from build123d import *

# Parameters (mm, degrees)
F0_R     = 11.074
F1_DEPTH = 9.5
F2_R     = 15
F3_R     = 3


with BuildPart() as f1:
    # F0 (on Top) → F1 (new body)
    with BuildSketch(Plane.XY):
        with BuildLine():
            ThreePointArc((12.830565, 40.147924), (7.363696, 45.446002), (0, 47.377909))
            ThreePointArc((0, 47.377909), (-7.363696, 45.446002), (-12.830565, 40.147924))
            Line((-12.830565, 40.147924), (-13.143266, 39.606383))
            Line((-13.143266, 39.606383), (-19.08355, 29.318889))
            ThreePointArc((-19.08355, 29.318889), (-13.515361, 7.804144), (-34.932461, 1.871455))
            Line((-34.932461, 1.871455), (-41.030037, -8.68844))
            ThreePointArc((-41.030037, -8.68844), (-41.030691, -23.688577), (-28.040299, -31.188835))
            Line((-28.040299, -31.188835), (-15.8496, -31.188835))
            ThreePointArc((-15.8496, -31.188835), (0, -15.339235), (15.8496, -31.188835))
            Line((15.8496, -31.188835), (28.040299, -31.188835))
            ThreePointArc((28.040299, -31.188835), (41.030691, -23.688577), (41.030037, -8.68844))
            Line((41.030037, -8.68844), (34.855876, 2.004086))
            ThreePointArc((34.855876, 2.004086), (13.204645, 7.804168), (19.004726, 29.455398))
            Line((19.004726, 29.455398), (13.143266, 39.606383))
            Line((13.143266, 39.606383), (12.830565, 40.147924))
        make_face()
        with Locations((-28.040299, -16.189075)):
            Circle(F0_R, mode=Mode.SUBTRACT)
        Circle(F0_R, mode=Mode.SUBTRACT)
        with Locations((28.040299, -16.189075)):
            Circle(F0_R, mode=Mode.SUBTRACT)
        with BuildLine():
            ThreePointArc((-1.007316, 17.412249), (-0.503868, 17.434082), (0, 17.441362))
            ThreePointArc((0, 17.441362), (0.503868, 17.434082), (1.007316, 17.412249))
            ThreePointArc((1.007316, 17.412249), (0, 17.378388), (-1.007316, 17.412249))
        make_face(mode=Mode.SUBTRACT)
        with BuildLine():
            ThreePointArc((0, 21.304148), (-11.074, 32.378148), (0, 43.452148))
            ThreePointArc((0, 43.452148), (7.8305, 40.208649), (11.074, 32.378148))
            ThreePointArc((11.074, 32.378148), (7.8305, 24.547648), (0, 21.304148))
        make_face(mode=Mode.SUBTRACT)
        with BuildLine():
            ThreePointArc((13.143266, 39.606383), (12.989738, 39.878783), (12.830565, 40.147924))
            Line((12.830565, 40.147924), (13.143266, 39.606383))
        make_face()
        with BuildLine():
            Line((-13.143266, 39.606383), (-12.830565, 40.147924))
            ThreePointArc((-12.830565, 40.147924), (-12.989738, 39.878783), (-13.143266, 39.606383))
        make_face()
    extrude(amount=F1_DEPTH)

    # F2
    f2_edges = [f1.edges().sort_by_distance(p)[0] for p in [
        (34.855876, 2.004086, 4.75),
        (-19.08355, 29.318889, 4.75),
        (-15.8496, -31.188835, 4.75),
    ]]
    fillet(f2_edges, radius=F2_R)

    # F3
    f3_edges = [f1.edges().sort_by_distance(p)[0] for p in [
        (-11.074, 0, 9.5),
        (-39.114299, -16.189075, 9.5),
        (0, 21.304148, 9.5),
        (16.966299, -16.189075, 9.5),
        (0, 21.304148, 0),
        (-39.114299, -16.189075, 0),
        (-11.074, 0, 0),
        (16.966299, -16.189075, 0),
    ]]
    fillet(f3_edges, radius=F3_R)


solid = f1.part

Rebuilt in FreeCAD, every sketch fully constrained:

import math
import FreeCAD as App
import Part
import Sketcher
Q = App.Units.Quantity


def edges_at(feature, points):
    """Names of the edges that pass closest to the given points."""
    edges = feature.Shape.Edges
    near = lambda p: min(range(len(edges)), key=lambda i: edges[i].distToShape(Part.Vertex(*p))[0])
    return sorted({f"Edge{near(p) + 1}" for p in points})

doc = App.newDocument("Part")
body = doc.addObject("PartDesign::Body", "Body")

# Sketch on XY plane
sketch1 = body.newObject("Sketcher::SketchObject", "Sketch")
sketch1.AttachmentSupport = (doc.getObject("XY_Plane"), [""])
sketch1.MapMode = "FlatFace"
sketch1.addGeometry([
    Part.ArcOfCircle(Part.Circle(App.Vector(0, 32.378149, 0), App.Vector(0, 0, 1), 14.99976), math.radians(31.197741), math.radians(90)),  # 0
    Part.ArcOfCircle(Part.Circle(App.Vector(0, 32.378149, 0), App.Vector(0, 0, 1), 14.99976), math.radians(90), math.radians(148.802259)),  # 1
    Part.ArcOfCircle(Part.Circle(App.Vector(0.000147, 32.378058, 0), App.Vector(0, 0, 1), 14.999933), math.radians(148.802254), math.radians(151.191056)),  # 2
    Part.LineSegment(App.Vector(-13.143266, 39.606383, 0), App.Vector(-19.08355, 29.318889, 0)),  # 3
    Part.ArcOfCircle(Part.Circle(App.Vector(-27.241057, 15.729742, 0), App.Vector(0, 0, 1), 15.8496), math.radians(-119.030449), math.radians(59.023787)),  # 4
    Part.LineSegment(App.Vector(-34.932461, 1.871455, 0), App.Vector(-41.030037, -8.68844, 0)),  # 5
    Part.ArcOfCircle(Part.Circle(App.Vector(-28.040299, -16.189075, 0), App.Vector(0, 0, 1), 14.99976), math.radians(149.996671), math.radians(270.000002)),  # 6
    Part.LineSegment(App.Vector(-28.040299, -31.188835, 0), App.Vector(-15.8496, -31.188835, 0)),  # 7
    Part.ArcOfCircle(Part.Circle(App.Vector(0, -31.188835, 0), App.Vector(0, 0, 1), 15.8496), math.radians(0), math.radians(180)),  # 8
    Part.LineSegment(App.Vector(15.8496, -31.188835, 0), App.Vector(28.040299, -31.188835, 0)),  # 9
    Part.ArcOfCircle(Part.Circle(App.Vector(28.040299, -16.189075, 0), App.Vector(0, 0, 1), 14.99976), math.radians(-90.000002), math.radians(30.003329)),  # 10
    Part.LineSegment(App.Vector(41.030037, -8.68844, 0), App.Vector(34.855876, 2.004086, 0)),  # 11
    Part.ArcOfCircle(Part.Circle(App.Vector(26.930301, 15.729742, 0), App.Vector(0, 0, 1), 15.849554), math.radians(120.003332), math.radians(300.003329)),  # 12
    Part.LineSegment(App.Vector(19.004726, 29.455398, 0), App.Vector(13.143266, 39.606383, 0)),  # 13
    Part.ArcOfCircle(Part.Circle(App.Vector(-0.000147, 32.378058, 0), App.Vector(0, 0, 1), 14.999933), math.radians(28.808944), math.radians(31.197746)),  # 14
    Part.Circle(App.Vector(-28.040299, -16.189075, 0), App.Vector(0, 0, 1), 11.074),  # 15
    Part.Circle(App.Vector(28.040299, -16.189075, 0), App.Vector(0, 0, 1), 11.074),  # 16
    Part.Circle(App.Vector(0, 0, 0), App.Vector(0, 0, 1), 11.074),  # 17
    Part.ArcOfCircle(Part.Circle(App.Vector(0, 32.378419, 0), App.Vector(0, 0, 1), 15.000031), math.radians(-93.850554), math.radians(-86.149446)),  # 18
    Part.ArcOfCircle(Part.Circle(App.Vector(0.000017, -0.000442, 0), App.Vector(0, 0, 1), 17.441804), math.radians(90.000054), math.radians(93.310898)),  # 19
    Part.ArcOfCircle(Part.Circle(App.Vector(-0.000017, -0.000442, 0), App.Vector(0, 0, 1), 17.441804), math.radians(86.689102), math.radians(89.999946)),  # 20
    Part.ArcOfCircle(Part.Circle(App.Vector(-0.000002, 32.37815, 0), App.Vector(0, 0, 1), 11.074002), math.radians(-89.999991), math.radians(-0.000009)),  # 21
    Part.ArcOfCircle(Part.Circle(App.Vector(0, 32.378148, 0), App.Vector(0, 0, 1), 11.074), math.radians(90), math.radians(270)),  # 22
    Part.ArcOfCircle(Part.Circle(App.Vector(0, 32.378148, 0), App.Vector(0, 0, 1), 11.074), math.radians(0), math.radians(90)),  # 23
], False)
sketch1.addConstraint([
    Sketcher.Constraint("Tangent", 0, 2, 1, 1),
    Sketcher.Constraint("Tangent", 1, 2, 2, 1),
    Sketcher.Constraint("Coincident", 2, 2, 3, 1),
    Sketcher.Constraint("Coincident", 3, 2, 4, 2),
    Sketcher.Constraint("Coincident", 4, 1, 5, 1),
    Sketcher.Constraint("Tangent", 5, 2, 6, 1),
    Sketcher.Constraint("Tangent", 6, 2, 7, 1),
    Sketcher.Constraint("Coincident", 7, 2, 8, 2),
    Sketcher.Constraint("Coincident", 8, 1, 9, 1),
    Sketcher.Constraint("Tangent", 9, 2, 10, 1),
    Sketcher.Constraint("Tangent", 10, 2, 11, 1),
    Sketcher.Constraint("Coincident", 11, 2, 12, 2),
    Sketcher.Constraint("Coincident", 12, 1, 13, 1),
    Sketcher.Constraint("Coincident", 13, 2, 14, 1),
    Sketcher.Constraint("Tangent", 14, 2, 0, 1),
    Sketcher.Constraint("Coincident", 18, 1, 19, 2),
    Sketcher.Constraint("Tangent", 19, 1, 20, 2),
    Sketcher.Constraint("Coincident", 20, 1, 18, 2),
    Sketcher.Constraint("Tangent", 21, 1, 22, 2),
    Sketcher.Constraint("Tangent", 22, 1, 23, 2),
    Sketcher.Constraint("Tangent", 23, 1, 21, 2),
    Sketcher.Constraint("Horizontal", 7),
    Sketcher.Constraint("Horizontal", 9),
    Sketcher.Constraint("Coincident", 17, 3, -1, 1),
    Sketcher.Constraint("Coincident", 15, 3, 6, 3),
    Sketcher.Constraint("Coincident", 16, 3, 10, 3),
    Sketcher.Constraint("Coincident", 21, 3, 0, 3),
    Sketcher.Constraint("Equal", 0, 1),
    Sketcher.Constraint("Equal", 1, 6),
    Sketcher.Constraint("Equal", 4, 8),
    Sketcher.Constraint("Equal", 6, 10),
    Sketcher.Constraint("Equal", 2, 14),
    Sketcher.Constraint("Equal", 15, 16),
    Sketcher.Constraint("Equal", 16, 17),
    Sketcher.Constraint("Equal", 19, 20),
    Sketcher.Constraint("Equal", 17, 21),
    Sketcher.Constraint("Symmetric", 6, 3, 10, 3, -2),
    Sketcher.Constraint("Symmetric", 2, 2, 13, 2, -2),
    Sketcher.Constraint("Symmetric", 18, 1, 20, 1, -2),
    Sketcher.Constraint("PointOnObject", 8, 3, -2),
    Sketcher.Constraint("PointOnObject", 0, 2, -2),
    Sketcher.Constraint("PointOnObject", 19, 1, -2),
    Sketcher.Constraint("PointOnObject", 21, 1, -2),
    Sketcher.Constraint("PointOnObject", 22, 1, -2),
    Sketcher.Constraint("Parallel", 3, 5),
    Sketcher.Constraint("Parallel", 11, 13),
    Sketcher.Constraint("Horizontal", 4, 3, 12, 3),
    Sketcher.Constraint("Horizontal", 8, 3, 6, 2),
    Sketcher.Constraint("Horizontal", 5, 2, 10, 2),
    Sketcher.Constraint("Horizontal", 1, 2, 14, 2),
    Sketcher.Constraint("Horizontal", 22, 3, 23, 1),
    Sketcher.Constraint("Diameter", 15, Q("22.148 mm")),
    Sketcher.Constraint("Radius", 4, Q("15.8496 mm")),
    Sketcher.Constraint("Radius", 0, Q("14.99976 mm")),
    Sketcher.Constraint("Radius", 18, Q("15.000031 mm")),
    Sketcher.Constraint("DistanceX", 12, 3, 10, 3, Q("1.109998 mm")),
    Sketcher.Constraint("DistanceX", 7, 1, 7, 2, Q("12.190699 mm")),
    Sketcher.Constraint("Radius", 2, Q("14.999933 mm")),
    Sketcher.Constraint("Radius", 12, Q("15.849554 mm")),
    Sketcher.Constraint("Radius", 19, Q("17.441804 mm")),
    Sketcher.Constraint("DistanceX", 2, 2, 1, 2, Q("0.312701 mm")),
    Sketcher.Constraint("DistanceY", 18, 1, 22, 3, Q("14.965899 mm")),
    Sketcher.Constraint("Distance", 11, Q("12.34708 mm")),
    Sketcher.Constraint("Distance", 13, Q("11.721741 mm")),
    Sketcher.Constraint("DistanceY", -1, 1, 0, 3, Q("32.378149 mm")),
    Sketcher.Constraint("DistanceY", -1, 1, 18, 3, Q("32.378419 mm")),
    Sketcher.Constraint("DistanceX", 3, 2, -1, 1, Q("19.08355 mm")),
    Sketcher.Constraint("DistanceY", -1, 1, 3, 2, Q("29.318889 mm")),
    Sketcher.Constraint("DistanceX", 4, 1, -1, 1, Q("34.932461 mm")),
])
pad1 = body.newObject("PartDesign::Pad", "Pad")
pad1.Profile = sketch1
pad1.Length = 9.5
doc.recompute()

fillet = body.newObject("PartDesign::Fillet", "Fillet")
fillet.Base = (pad1, edges_at(pad1, [(34.856, 2.004, 4.75), (-19.084, 29.319, 4.75), (-15.85, -31.189, 4.75)]))
fillet.Radius = 15
doc.recompute()

fillet2 = body.newObject("PartDesign::Fillet", "Fillet001")
fillet2.Base = (fillet, edges_at(fillet, [
    (-11.074, 0, 9.5),
    (-39.114, -16.189, 9.5),
    (7.83, 24.548, 9.5),
    (16.966, -16.189, 9.5),
    (7.83, 24.548, 0),
    (-39.114, -16.189, 0),
    (-11.074, 0, 0),
    (16.966, -16.189, 0),
]))
fillet2.Radius = 3

doc.recompute()
